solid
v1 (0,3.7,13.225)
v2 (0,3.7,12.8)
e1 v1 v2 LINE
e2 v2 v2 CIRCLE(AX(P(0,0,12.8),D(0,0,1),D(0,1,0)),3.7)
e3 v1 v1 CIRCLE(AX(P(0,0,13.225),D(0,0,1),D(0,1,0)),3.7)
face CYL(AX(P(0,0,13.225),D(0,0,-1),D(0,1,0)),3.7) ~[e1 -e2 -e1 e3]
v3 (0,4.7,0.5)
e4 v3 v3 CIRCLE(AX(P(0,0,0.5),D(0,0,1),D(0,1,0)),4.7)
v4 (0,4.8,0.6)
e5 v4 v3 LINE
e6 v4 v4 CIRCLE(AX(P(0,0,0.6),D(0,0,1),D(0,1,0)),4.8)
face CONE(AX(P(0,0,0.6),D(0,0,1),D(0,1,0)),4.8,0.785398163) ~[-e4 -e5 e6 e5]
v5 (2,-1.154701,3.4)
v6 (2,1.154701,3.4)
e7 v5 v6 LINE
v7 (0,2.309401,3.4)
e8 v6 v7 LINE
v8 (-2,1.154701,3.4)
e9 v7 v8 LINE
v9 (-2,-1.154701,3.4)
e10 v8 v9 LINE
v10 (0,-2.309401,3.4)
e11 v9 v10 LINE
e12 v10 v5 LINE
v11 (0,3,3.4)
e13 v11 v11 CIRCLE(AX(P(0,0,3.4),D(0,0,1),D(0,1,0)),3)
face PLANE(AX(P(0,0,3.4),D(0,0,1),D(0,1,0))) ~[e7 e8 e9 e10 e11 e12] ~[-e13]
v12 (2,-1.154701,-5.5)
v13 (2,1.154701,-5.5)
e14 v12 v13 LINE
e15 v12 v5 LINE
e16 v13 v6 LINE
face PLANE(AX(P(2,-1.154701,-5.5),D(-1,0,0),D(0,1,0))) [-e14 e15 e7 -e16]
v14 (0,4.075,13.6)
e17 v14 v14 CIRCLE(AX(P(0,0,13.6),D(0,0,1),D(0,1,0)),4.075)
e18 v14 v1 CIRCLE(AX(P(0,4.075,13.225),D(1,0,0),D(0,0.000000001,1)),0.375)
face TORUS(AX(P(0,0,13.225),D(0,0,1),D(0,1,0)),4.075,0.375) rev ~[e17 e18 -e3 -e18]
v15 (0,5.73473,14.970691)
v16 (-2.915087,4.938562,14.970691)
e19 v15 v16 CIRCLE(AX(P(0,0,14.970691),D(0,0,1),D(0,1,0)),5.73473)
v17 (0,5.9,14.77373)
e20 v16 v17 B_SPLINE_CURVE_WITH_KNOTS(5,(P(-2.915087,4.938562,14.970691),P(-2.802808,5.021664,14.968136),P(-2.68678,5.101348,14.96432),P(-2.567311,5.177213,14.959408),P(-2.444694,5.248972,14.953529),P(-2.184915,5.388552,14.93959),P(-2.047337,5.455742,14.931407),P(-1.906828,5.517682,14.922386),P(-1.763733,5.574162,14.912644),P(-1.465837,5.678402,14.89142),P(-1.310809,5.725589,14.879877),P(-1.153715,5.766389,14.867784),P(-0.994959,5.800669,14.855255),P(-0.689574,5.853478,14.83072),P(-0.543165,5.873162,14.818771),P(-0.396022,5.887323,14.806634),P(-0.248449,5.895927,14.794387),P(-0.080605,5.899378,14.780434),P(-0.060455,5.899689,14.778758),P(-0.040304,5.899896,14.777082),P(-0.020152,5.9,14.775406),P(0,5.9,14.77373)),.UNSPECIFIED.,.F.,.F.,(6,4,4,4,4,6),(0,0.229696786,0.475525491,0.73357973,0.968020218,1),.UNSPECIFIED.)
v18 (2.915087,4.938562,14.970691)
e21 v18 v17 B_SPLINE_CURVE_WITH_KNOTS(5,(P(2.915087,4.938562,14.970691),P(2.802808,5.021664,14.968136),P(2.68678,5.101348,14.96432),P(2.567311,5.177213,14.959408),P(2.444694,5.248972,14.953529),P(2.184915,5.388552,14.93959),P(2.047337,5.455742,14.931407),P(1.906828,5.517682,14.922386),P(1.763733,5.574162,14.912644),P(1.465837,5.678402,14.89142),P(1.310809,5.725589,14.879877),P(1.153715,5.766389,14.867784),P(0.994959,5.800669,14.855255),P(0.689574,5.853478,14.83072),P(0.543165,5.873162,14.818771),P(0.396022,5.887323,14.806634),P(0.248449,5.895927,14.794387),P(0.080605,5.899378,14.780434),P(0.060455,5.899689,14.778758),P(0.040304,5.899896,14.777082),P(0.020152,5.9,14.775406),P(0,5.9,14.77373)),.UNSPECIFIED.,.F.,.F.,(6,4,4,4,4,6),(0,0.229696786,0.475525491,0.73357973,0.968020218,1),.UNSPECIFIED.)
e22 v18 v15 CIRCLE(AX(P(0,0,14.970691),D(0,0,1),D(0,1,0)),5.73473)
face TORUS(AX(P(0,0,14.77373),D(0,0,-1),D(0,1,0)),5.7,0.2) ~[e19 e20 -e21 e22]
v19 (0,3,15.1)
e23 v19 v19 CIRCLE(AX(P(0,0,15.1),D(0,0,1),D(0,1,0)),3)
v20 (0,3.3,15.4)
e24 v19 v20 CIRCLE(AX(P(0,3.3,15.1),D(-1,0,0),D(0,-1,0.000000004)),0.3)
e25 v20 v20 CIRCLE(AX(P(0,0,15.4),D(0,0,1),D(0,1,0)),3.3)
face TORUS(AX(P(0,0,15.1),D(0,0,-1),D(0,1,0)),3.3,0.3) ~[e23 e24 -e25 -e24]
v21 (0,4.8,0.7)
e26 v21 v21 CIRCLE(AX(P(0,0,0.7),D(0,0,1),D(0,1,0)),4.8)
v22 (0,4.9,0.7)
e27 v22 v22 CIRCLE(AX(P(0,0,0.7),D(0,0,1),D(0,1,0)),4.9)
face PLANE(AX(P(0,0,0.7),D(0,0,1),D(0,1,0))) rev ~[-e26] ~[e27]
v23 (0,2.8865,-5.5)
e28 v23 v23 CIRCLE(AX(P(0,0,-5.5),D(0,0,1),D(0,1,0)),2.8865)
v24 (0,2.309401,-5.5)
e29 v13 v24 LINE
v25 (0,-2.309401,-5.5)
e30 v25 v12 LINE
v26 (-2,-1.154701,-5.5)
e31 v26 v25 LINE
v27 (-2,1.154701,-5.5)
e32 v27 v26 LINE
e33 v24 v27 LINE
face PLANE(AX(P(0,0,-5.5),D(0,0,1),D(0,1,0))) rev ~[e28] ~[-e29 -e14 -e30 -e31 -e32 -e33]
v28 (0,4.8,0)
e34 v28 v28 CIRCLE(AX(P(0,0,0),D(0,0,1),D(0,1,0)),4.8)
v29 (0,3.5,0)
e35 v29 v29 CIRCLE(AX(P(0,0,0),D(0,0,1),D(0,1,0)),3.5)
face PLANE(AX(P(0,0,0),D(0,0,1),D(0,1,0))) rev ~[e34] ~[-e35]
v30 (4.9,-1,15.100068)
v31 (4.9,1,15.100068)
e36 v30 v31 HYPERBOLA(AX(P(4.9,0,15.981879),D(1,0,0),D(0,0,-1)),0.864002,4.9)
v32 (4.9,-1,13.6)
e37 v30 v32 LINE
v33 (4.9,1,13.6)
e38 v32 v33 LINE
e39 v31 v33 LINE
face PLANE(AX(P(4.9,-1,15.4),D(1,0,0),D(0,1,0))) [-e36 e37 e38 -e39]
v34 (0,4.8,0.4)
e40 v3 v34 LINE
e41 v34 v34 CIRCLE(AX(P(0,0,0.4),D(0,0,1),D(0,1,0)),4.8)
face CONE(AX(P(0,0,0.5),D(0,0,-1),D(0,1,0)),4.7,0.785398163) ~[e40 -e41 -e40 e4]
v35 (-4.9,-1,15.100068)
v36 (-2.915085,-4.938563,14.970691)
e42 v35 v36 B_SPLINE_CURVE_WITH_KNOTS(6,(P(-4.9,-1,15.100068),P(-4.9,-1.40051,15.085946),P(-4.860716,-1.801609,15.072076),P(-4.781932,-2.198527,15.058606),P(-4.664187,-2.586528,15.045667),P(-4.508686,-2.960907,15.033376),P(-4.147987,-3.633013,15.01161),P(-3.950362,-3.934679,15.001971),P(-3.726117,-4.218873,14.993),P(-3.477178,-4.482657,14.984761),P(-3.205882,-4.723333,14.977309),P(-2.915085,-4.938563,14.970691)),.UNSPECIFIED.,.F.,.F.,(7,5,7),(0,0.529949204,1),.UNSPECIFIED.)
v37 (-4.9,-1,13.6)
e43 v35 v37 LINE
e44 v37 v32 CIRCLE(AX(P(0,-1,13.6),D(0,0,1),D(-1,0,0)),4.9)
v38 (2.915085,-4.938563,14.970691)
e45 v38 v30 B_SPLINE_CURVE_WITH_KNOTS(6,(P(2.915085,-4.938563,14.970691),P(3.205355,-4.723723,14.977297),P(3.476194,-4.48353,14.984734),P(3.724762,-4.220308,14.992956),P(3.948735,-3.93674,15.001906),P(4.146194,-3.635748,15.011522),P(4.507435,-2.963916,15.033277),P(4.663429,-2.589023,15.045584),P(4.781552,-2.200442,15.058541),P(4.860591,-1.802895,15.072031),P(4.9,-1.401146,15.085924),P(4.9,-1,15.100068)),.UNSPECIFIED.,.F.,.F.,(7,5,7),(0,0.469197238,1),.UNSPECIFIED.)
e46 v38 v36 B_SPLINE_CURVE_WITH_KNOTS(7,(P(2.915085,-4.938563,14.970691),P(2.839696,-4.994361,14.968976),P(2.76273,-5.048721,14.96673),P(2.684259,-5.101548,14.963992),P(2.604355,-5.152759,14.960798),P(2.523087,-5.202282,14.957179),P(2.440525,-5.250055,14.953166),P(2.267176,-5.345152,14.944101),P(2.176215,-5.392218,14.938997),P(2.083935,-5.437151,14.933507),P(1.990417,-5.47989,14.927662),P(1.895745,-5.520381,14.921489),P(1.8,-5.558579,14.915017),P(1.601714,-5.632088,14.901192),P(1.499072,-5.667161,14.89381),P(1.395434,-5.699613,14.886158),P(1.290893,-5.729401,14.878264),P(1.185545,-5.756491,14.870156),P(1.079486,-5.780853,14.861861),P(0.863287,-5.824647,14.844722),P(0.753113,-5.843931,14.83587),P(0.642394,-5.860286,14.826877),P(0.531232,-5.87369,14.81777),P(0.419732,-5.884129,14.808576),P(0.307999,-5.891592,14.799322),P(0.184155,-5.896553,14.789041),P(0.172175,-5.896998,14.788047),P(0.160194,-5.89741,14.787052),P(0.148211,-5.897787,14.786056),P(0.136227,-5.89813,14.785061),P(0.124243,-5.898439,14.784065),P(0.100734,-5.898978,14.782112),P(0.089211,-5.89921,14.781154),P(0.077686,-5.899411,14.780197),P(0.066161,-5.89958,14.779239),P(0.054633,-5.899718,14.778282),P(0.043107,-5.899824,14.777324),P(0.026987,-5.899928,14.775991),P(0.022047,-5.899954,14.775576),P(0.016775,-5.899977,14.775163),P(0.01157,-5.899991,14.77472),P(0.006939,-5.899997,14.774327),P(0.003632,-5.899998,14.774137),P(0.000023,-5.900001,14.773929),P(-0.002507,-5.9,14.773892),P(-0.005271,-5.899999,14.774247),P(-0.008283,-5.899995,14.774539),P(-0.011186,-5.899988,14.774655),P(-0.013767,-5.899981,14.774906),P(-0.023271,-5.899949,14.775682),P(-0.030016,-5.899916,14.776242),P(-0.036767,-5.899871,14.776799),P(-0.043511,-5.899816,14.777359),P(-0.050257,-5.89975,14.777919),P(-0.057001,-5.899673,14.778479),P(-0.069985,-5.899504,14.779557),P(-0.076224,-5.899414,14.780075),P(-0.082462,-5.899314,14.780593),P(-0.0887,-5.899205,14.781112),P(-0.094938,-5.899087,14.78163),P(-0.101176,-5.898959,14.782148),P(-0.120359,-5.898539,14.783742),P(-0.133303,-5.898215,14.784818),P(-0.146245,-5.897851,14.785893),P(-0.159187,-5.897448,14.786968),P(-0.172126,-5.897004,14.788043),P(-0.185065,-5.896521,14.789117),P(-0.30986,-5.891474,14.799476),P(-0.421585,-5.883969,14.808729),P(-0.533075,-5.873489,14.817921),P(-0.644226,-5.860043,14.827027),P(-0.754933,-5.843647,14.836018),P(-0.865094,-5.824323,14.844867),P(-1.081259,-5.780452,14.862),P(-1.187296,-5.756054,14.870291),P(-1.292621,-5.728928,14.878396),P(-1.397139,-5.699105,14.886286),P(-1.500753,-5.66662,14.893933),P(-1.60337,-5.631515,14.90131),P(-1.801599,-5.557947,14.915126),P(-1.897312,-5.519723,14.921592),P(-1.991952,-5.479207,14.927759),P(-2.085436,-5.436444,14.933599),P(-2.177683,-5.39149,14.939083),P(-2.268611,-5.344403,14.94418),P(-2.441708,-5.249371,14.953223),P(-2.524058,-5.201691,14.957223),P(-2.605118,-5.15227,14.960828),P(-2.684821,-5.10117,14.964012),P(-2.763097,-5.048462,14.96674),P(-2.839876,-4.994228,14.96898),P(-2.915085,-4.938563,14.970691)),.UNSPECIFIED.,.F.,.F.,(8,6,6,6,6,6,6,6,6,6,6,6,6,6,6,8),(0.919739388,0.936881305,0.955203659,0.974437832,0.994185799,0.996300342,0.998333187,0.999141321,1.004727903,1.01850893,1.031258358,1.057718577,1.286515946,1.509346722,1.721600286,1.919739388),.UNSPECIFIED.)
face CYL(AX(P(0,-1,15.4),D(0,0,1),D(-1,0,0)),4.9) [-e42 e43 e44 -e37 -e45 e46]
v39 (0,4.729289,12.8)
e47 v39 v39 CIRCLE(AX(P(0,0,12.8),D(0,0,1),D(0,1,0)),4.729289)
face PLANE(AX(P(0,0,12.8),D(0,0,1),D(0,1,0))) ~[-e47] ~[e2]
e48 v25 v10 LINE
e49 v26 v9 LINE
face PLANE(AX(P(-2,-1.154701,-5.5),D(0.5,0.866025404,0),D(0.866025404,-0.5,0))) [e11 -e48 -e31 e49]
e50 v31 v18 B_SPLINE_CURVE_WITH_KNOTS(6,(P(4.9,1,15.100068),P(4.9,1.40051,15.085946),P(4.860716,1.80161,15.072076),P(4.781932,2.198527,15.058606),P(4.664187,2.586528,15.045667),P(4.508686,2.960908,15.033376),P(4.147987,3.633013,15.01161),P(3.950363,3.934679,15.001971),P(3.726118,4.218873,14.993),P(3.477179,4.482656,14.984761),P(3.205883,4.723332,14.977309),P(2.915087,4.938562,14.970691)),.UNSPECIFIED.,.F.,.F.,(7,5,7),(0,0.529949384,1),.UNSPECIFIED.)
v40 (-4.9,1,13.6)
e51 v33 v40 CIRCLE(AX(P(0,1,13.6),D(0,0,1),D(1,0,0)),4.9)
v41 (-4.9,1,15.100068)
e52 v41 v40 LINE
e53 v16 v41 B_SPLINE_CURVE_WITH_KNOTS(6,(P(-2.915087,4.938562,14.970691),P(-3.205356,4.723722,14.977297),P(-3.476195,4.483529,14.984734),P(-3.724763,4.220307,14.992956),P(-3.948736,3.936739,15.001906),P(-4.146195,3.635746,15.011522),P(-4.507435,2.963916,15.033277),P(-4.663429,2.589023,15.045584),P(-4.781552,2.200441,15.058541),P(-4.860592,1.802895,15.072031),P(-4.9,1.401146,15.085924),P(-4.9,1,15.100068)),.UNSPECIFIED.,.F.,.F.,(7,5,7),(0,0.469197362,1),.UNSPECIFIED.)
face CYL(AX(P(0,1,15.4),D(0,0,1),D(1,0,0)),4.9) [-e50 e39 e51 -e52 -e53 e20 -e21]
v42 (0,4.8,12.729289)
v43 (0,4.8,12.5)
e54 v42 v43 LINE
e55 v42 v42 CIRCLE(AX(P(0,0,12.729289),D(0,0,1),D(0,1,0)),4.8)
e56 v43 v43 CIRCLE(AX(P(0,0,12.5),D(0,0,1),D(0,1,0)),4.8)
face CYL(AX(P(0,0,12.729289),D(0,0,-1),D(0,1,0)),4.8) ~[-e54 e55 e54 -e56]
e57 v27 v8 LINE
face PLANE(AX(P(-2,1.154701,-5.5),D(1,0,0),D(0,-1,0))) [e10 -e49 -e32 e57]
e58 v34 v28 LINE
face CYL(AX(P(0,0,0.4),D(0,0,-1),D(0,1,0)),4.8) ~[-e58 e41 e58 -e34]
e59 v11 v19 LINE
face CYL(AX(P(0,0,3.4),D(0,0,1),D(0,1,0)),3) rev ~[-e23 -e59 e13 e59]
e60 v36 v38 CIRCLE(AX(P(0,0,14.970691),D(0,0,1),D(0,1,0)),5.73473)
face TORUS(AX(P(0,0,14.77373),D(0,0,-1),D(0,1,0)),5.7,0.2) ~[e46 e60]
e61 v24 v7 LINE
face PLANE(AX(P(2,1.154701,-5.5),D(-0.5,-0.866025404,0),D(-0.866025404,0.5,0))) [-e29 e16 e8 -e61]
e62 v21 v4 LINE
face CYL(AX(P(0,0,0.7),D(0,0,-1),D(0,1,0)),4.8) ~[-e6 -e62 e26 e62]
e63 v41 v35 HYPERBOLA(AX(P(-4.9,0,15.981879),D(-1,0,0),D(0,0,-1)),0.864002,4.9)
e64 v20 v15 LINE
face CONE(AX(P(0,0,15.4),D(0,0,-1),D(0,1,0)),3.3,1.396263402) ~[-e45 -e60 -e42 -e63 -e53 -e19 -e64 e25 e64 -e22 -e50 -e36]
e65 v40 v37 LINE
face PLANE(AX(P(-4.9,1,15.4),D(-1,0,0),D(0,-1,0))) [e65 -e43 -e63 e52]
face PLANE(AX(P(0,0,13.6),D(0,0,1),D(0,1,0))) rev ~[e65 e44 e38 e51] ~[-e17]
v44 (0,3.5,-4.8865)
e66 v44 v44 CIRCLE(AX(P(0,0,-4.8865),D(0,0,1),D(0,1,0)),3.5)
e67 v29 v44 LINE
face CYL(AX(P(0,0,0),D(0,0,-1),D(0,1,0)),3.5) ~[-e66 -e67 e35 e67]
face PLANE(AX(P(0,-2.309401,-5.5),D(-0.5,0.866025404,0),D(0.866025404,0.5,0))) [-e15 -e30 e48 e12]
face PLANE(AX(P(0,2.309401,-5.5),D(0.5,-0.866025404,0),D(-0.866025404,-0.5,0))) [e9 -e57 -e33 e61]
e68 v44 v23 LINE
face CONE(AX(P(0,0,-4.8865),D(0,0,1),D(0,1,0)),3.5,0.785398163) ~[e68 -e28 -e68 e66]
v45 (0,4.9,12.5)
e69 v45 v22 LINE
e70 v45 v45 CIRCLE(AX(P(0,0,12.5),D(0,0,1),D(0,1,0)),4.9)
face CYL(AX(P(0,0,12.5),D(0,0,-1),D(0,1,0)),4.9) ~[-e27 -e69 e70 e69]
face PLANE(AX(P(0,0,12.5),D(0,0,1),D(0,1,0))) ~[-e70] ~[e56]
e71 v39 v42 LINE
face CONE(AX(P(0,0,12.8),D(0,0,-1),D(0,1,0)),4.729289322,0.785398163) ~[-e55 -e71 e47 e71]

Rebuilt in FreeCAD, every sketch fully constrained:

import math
import FreeCAD as App
import Part
import Sketcher
from FreeCAD import Vector
Q = App.Units.Quantity


def add_polygon(sketch, points):
    """Adds a closed chain of lines whose ends are joined by coincident constraints."""
    first, n = sketch.GeometryCount, len(points)
    for a, b in zip(points, points[1:] + points[:1]):
        sketch.addGeometry(Part.LineSegment(App.Vector(*a, 0), App.Vector(*b, 0)), False)
    for i in range(n):
        sketch.addConstraint(Sketcher.Constraint("Coincident", first + i, 2, first + (i + 1) % n, 1))

doc = App.newDocument("Part")
params = doc.addObject("Spreadsheet::Sheet", "Params")
for row, (alias, value) in enumerate([
    ("sketch1_radius", "0.2 mm"),
    ("sketch1_radius2", "0.3 mm"),
    ("sketch1_width", "3 mm"),
    ("sketch1_width2", "1.3 mm"),
    ("sketch1_width3", "0.1 mm"),
    ("revolution_angle", "360 deg"),
    ("pocket1_length", "8.9 mm"),
    ("sketch3_radius", "4.9 mm"),
    ("sketch3_width", "20 mm"),
    ("sketch3_height", "2 mm"),
    ("pocket2_length", "2 mm"),
], start=1):
    params.set(f"A{row}", alias)
    params.set(f"B{row}", "=" + value)
    params.setAlias(f"B{row}", alias)

body = doc.addObject("PartDesign::Body", "Body")

sketch1 = body.newObject("Sketcher::SketchObject", "Sketch")
sketch1.AttachmentSupport = (doc.getObject("YZ_Plane"), [""])
sketch1.MapMode = "FlatFace"
sketch1.addGeometry([
    Part.LineSegment(Vector(3, 3.4, 0), Vector(0, 3.4, 0)),
    Part.LineSegment(Vector(0, 3.4, 0), Vector(0, -5.5, 0)),
    Part.LineSegment(Vector(0, -5.5, 0), Vector(2.8865, -5.5, 0)),
    Part.LineSegment(Vector(2.8865, -5.5, 0), Vector(3.5, -4.8865, 0)),
    Part.LineSegment(Vector(3.5, -4.8865, 0), Vector(3.5, 0, 0)),
    Part.LineSegment(Vector(3.5, 0, 0), Vector(4.8, 0, 0)),
    Part.LineSegment(Vector(4.8, 0, 0), Vector(4.8, 0.4, 0)),
    Part.LineSegment(Vector(4.8, 0.4, 0), Vector(4.7, 0.5, 0)),
    Part.LineSegment(Vector(4.7, 0.5, 0), Vector(4.8, 0.6, 0)),
    Part.LineSegment(Vector(4.8, 0.6, 0), Vector(4.8, 0.7, 0)),
    Part.LineSegment(Vector(4.8, 0.7, 0), Vector(4.9, 0.7, 0)),
    Part.LineSegment(Vector(4.9, 0.7, 0), Vector(4.9, 12.5, 0)),
    Part.LineSegment(Vector(4.9, 12.5, 0), Vector(4.8, 12.5, 0)),
    Part.LineSegment(Vector(4.8, 12.5, 0), Vector(4.8, 12.729289, 0)),
    Part.LineSegment(Vector(4.8, 12.729289, 0), Vector(4.729289, 12.8, 0)),
    Part.LineSegment(Vector(4.729289, 12.8, 0), Vector(3.7, 12.8, 0)),
    Part.LineSegment(Vector(3.7, 12.8, 0), Vector(3.7, 13.225, 0)),
    Part.ArcOfCircle(Part.Circle(Vector(4.075, 13.225, 0), Vector(0, 0, 1), 0.375), math.radians(90), math.radians(180)),
    Part.LineSegment(Vector(4.075, 13.6, 0), Vector(5.9, 13.6, 0)),
    Part.LineSegment(Vector(5.9, 13.6, 0), Vector(5.9, 14.77373, 0)),
    Part.ArcOfCircle(Part.Circle(Vector(5.7, 14.77373, 0), Vector(0, 0, 1), 0.2), math.radians(0), math.radians(80)),
    Part.LineSegment(Vector(5.73473, 14.970691, 0), Vector(3.3, 15.4, 0)),
    Part.ArcOfCircle(Part.Circle(Vector(3.3, 15.1, 0), Vector(0, 0, 1), 0.3), math.radians(90), math.radians(180)),
    Part.LineSegment(Vector(3, 15.1, 0), Vector(3, 3.4, 0)),
], False)
sketch1.addConstraint([
    Sketcher.Constraint("Coincident", 0, 2, 1, 1),
    Sketcher.Constraint("Coincident", 1, 2, 2, 1),
    Sketcher.Constraint("Coincident", 2, 2, 3, 1),
    Sketcher.Constraint("Coincident", 3, 2, 4, 1),
    Sketcher.Constraint("Coincident", 4, 2, 5, 1),
    Sketcher.Constraint("Coincident", 5, 2, 6, 1),
    Sketcher.Constraint("Coincident", 6, 2, 7, 1),
    Sketcher.Constraint("Coincident", 7, 2, 8, 1),
    Sketcher.Constraint("Coincident", 8, 2, 9, 1),
    Sketcher.Constraint("Coincident", 9, 2, 10, 1),
    Sketcher.Constraint("Coincident", 10, 2, 11, 1),
    Sketcher.Constraint("Coincident", 11, 2, 12, 1),
    Sketcher.Constraint("Coincident", 12, 2, 13, 1),
    Sketcher.Constraint("Coincident", 13, 2, 14, 1),
    Sketcher.Constraint("Coincident", 14, 2, 15, 1),
    Sketcher.Constraint("Coincident", 15, 2, 16, 1),
    Sketcher.Constraint("Tangent", 16, 2, 17, 2),
    Sketcher.Constraint("Tangent", 17, 1, 18, 1),
    Sketcher.Constraint("Coincident", 18, 2, 19, 1),
    Sketcher.Constraint("Tangent", 19, 2, 20, 1),
    Sketcher.Constraint("Tangent", 20, 2, 21, 1),
    Sketcher.Constraint("Coincident", 21, 2, 22, 1),
    Sketcher.Constraint("Tangent", 22, 2, 23, 1),
    Sketcher.Constraint("Coincident", 23, 2, 0, 1),
    Sketcher.Constraint("Horizontal", 0),
    Sketcher.Constraint("Vertical", 1),
    Sketcher.Constraint("Horizontal", 2),
    Sketcher.Constraint("Vertical", 4),
    Sketcher.Constraint("Horizontal", 5),
    Sketcher.Constraint("Vertical", 6),
    Sketcher.Constraint("Vertical", 9),
    Sketcher.Constraint("Horizontal", 10),
    Sketcher.Constraint("Vertical", 11),
    Sketcher.Constraint("Horizontal", 12),
    Sketcher.Constraint("Vertical", 13),
    Sketcher.Constraint("Horizontal", 15),
    Sketcher.Constraint("Vertical", 16),
    Sketcher.Constraint("Horizontal", 18),
    Sketcher.Constraint("Vertical", 19),
    Sketcher.Constraint("Vertical", 23),
    Sketcher.Constraint("PointOnObject", 0, 2, -2),
    Sketcher.Constraint("PointOnObject", 4, 2, -1),
    Sketcher.Constraint("Perpendicular", 3, 7),
    Sketcher.Constraint("Perpendicular", 7, 8),
    Sketcher.Constraint("Perpendicular", 8, 14),
    Sketcher.Constraint("Vertical", 6, 2, 8, 2),
    Sketcher.Constraint("Vertical", 9, 2, 12, 2),
    Sketcher.Constraint("Vertical", 22, 3, 21, 2),
    Sketcher.Constraint("Equal", 12, 9),
    Sketcher.Constraint("Equal", 7, 8),
    Sketcher.Constraint("Radius", 20, Q("0.2 mm")),
    Sketcher.Constraint("Radius", 22, Q("0.3 mm")),
    Sketcher.Constraint("DistanceX", 0, 2, 0, 1, Q("3 mm")),
    Sketcher.Constraint("Angle", 21, Q("170 deg")),
    Sketcher.Constraint("DistanceX", 5, 1, 5, 2, Q("1.3 mm")),
    Sketcher.Constraint("DistanceX", 10, 1, 10, 2, Q("0.1 mm")),
    Sketcher.Constraint("DistanceY", 1, 2, 1, 1, Q("8.9 mm")),
    Sketcher.Constraint("DistanceY", 6, 1, 6, 2, Q("0.4 mm")),
    Sketcher.Constraint("DistanceY", 11, 1, 11, 2, Q("11.8 mm")),
    Sketcher.Constraint("DistanceY", 23, 2, 23, 1, Q("11.7 mm")),
    Sketcher.Constraint("Radius", 17, Q("0.375 mm")),
    Sketcher.Constraint("DistanceY", 6, 2, 0, 2, Q("3 mm")),
    Sketcher.Constraint("DistanceX", 11, 2, 18, 2, Q("1 mm")),
    Sketcher.Constraint("Distance", 14, Q("0.1 mm")),
    Sketcher.Constraint("DistanceX", -1, 1, 20, 3, Q("5.7 mm")),
    Sketcher.Constraint("DistanceX", -1, 1, 7, 2, Q("4.7 mm")),
    Sketcher.Constraint("DistanceY", -1, 1, 14, 2, Q("12.8 mm")),
    Sketcher.Constraint("DistanceX", -1, 1, 15, 2, Q("3.7 mm")),
    Sketcher.Constraint("DistanceY", -1, 1, 17, 1, Q("13.6 mm")),
    Sketcher.Constraint("DistanceX", 2, 1, 2, 2, Q("2.8865 mm")),
])
sketch1.setExpression("Constraints[50]", "Params.sketch1_radius")
sketch1.setExpression("Constraints[51]", "Params.sketch1_radius2")
sketch1.setExpression("Constraints[52]", "Params.sketch1_width")
sketch1.setExpression("Constraints[54]", "Params.sketch1_width2")
sketch1.setExpression("Constraints[55]", "Params.sketch1_width3")
revolution = body.newObject("PartDesign::Revolution", "Revolution")
revolution.Profile = sketch1
revolution.ReferenceAxis = (sketch1, ["V_Axis"])
revolution.setExpression("Angle", "Params.revolution_angle")

sketch2 = body.newObject("Sketcher::SketchObject", "Sketch001")
sketch2.AttachmentSupport = (doc.getObject("XY_Plane"), [""])
sketch2.MapMode = "FlatFace"
sketch2.AttachmentOffset = App.Placement(Vector(0, 0, -5.5), App.Rotation())
add_polygon(sketch2, [(-2, -1.154701), (0, -2.309401), (2, -1.154701), (2, 1.154701), (0, 2.309401), (-2, 1.154701)])
sketch2.addConstraint([
    Sketcher.Constraint("Vertical", 2),
    Sketcher.Constraint("Vertical", 5),
    Sketcher.Constraint("Symmetric", 0, 2, 3, 2, -1, 1),
    Sketcher.Constraint("Symmetric", 1, 2, 4, 2, -1, 1),
    Sketcher.Constraint("PointOnObject", 0, 2, -2),
    Sketcher.Constraint("Parallel", 0, 3),
    Sketcher.Constraint("Horizontal", 2, 2, 4, 2),
    Sketcher.Constraint("Angle", 0, Q("-30 deg")),
    Sketcher.Constraint("DistanceX", -1, 1, 1, 2, Q("2 mm")),
    Sketcher.Constraint("DistanceY", 2, 1, 2, 2, Q("2.309401 mm")),
])
pocket1 = body.newObject("PartDesign::Pocket", "Pocket")
pocket1.Profile = sketch2
pocket1.setExpression("Length", "Params.pocket1_length")
pocket1.Reversed = True

sketch3 = body.newObject("Sketcher::SketchObject", "Sketch002")
sketch3.AttachmentSupport = (doc.getObject("XY_Plane"), [""])
sketch3.MapMode = "FlatFace"
sketch3.AttachmentOffset = App.Placement(Vector(0, 0, 15.4), App.Rotation())
add_polygon(sketch3, [(-10, 10), (-10, -10), (10, -10), (10, 10)])
sketch3.addGeometry(Part.LineSegment(Vector(-4.9, -1, 0), Vector(-4.9, 1, 0)), False)
sketch3.addGeometry(Part.ArcOfCircle(Part.Circle(Vector(0, 1, 0), Vector(0, 0, 1), 4.9), math.radians(0), math.radians(180)), False)
sketch3.addGeometry(Part.LineSegment(Vector(4.9, 1, 0), Vector(4.9, -1, 0)), False)
sketch3.addGeometry(Part.ArcOfCircle(Part.Circle(Vector(0, -1, 0), Vector(0, 0, 1), 4.9), math.radians(180), math.radians(360)), False)
sketch3.addConstraint([
    Sketcher.Constraint("Tangent", 4, 2, 5, 2),
    Sketcher.Constraint("Tangent", 5, 1, 6, 1),
    Sketcher.Constraint("Tangent", 6, 2, 7, 2),
    Sketcher.Constraint("Tangent", 7, 1, 4, 1),
    Sketcher.Constraint("Vertical", 0),
    Sketcher.Constraint("Horizontal", 1),
    Sketcher.Constraint("Vertical", 2),
    Sketcher.Constraint("Horizontal", 3),
    Sketcher.Constraint("Vertical", 4),
    Sketcher.Constraint("Vertical", 6),
    Sketcher.Constraint("Symmetric", 5, 3, 7, 3, -1, 1),
    Sketcher.Constraint("Symmetric", 0, 2, 2, 2, -1, 1),
    Sketcher.Constraint("Equal", 3, 0),
    Sketcher.Constraint("Radius", 5, Q("4.9 mm")),
    Sketcher.Constraint("DistanceX", 1, 1, 1, 2, Q("20 mm")),
    Sketcher.Constraint("DistanceY", 4, 1, 4, 2, Q("2 mm")),
])
sketch3.setExpression("Constraints[17]", "Params.sketch3_radius")
sketch3.setExpression("Constraints[18]", "Params.sketch3_width")
sketch3.setExpression("Constraints[19]", "Params.sketch3_height")
pocket2 = body.newObject("PartDesign::Pocket", "Pocket001")
pocket2.Profile = sketch3
pocket2.setExpression("Length", "Params.pocket2_length")

doc.recompute()
